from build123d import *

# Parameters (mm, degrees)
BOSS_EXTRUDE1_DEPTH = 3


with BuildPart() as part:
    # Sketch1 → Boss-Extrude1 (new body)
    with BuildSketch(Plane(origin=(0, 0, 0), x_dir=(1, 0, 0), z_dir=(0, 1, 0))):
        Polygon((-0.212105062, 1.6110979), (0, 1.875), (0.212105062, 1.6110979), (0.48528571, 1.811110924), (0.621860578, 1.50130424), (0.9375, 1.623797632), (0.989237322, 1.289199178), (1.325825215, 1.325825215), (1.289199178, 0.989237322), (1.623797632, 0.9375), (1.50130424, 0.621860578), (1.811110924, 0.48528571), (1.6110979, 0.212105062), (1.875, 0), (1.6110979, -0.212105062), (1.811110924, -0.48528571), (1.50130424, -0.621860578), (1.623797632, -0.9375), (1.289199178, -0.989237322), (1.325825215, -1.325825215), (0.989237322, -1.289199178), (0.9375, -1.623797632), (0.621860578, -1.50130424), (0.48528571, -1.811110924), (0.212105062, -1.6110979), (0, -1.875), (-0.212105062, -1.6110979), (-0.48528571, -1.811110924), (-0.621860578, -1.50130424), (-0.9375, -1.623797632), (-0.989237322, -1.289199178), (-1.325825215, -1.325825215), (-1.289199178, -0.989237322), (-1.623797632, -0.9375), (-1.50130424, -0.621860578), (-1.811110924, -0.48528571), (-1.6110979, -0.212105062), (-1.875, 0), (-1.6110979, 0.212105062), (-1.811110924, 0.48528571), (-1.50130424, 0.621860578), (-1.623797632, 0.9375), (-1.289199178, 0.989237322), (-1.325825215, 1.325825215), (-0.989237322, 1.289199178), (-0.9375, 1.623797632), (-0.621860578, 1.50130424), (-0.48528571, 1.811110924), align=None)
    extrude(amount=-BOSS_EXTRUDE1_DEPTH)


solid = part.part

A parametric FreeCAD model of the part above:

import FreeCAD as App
import Part
import Sketcher

V = App.Vector

doc = App.newDocument("Part")
params = doc.addObject("Spreadsheet::Sheet", "Params")
for row, (alias, value) in enumerate([
    ("pad1_length", "3 mm"),
], start=1):
    params.set(f"A{row}", alias)
    params.set(f"B{row}", "=" + value)
    params.setAlias(f"B{row}", alias)

body = doc.addObject("PartDesign::Body", "Body")

# Sketch on XZ plane
sketch1 = body.newObject("Sketcher::SketchObject", "Sketch")
sketch1.AttachmentSupport = (doc.getObject("XZ_Plane"), [""])
sketch1.MapMode = "FlatFace"
sketch1.addGeometry(Part.LineSegment(V(0, -1.875, 0), V(-0.212105, -1.611098, 0)), False)
sketch1.addGeometry(Part.LineSegment(V(-0.212105, -1.611098, 0), V(-0.485286, -1.811111, 0)), False)
sketch1.addGeometry(Part.LineSegment(V(-0.485286, -1.811111, 0), V(-0.621861, -1.501304, 0)), False)
sketch1.addGeometry(Part.LineSegment(V(-0.621861, -1.501304, 0), V(-0.9375, -1.623798, 0)), False)
sketch1.addGeometry(Part.LineSegment(V(-0.9375, -1.623798, 0), V(-0.989237, -1.289199, 0)), False)
sketch1.addGeometry(Part.LineSegment(V(-0.989237, -1.289199, 0), V(-1.325825, -1.325825, 0)), False)
sketch1.addGeometry(Part.LineSegment(V(-1.325825, -1.325825, 0), V(-1.289199, -0.989237, 0)), False)
sketch1.addGeometry(Part.LineSegment(V(-1.289199, -0.989237, 0), V(-1.623798, -0.9375, 0)), False)
sketch1.addGeometry(Part.LineSegment(V(-1.623798, -0.9375, 0), V(-1.501304, -0.621861, 0)), False)
sketch1.addGeometry(Part.LineSegment(V(-1.501304, -0.621861, 0), V(-1.811111, -0.485286, 0)), False)
sketch1.addGeometry(Part.LineSegment(V(-1.811111, -0.485286, 0), V(-1.611098, -0.212105, 0)), False)
sketch1.addGeometry(Part.LineSegment(V(-1.611098, -0.212105, 0), V(-1.875, 0, 0)), False)
sketch1.addGeometry(Part.LineSegment(V(-1.875, 0, 0), V(-1.611098, 0.212105, 0)), False)
sketch1.addGeometry(Part.LineSegment(V(-1.611098, 0.212105, 0), V(-1.811111, 0.485286, 0)), False)
sketch1.addGeometry(Part.LineSegment(V(-1.811111, 0.485286, 0), V(-1.501304, 0.621861, 0)), False)
sketch1.addGeometry(Part.LineSegment(V(-1.501304, 0.621861, 0), V(-1.623798, 0.9375, 0)), False)
sketch1.addGeometry(Part.LineSegment(V(-1.623798, 0.9375, 0), V(-1.289199, 0.989237, 0)), False)
sketch1.addGeometry(Part.LineSegment(V(-1.289199, 0.989237, 0), V(-1.325825, 1.325825, 0)), False)
sketch1.addGeometry(Part.LineSegment(V(-1.325825, 1.325825, 0), V(-0.989237, 1.289199, 0)), False)
sketch1.addGeometry(Part.LineSegment(V(-0.989237, 1.289199, 0), V(-0.9375, 1.623798, 0)), False)
sketch1.addGeometry(Part.LineSegment(V(-0.9375, 1.623798, 0), V(-0.621861, 1.501304, 0)), False)
sketch1.addGeometry(Part.LineSegment(V(-0.621861, 1.501304, 0), V(-0.485286, 1.811111, 0)), False)
sketch1.addGeometry(Part.LineSegment(V(-0.485286, 1.811111, 0), V(-0.212105, 1.611098, 0)), False)
sketch1.addGeometry(Part.LineSegment(V(-0.212105, 1.611098, 0), V(0, 1.875, 0)), False)
sketch1.addGeometry(Part.LineSegment(V(0, 1.875, 0), V(0.212105, 1.611098, 0)), False)
sketch1.addGeometry(Part.LineSegment(V(0.212105, 1.611098, 0), V(0.485286, 1.811111, 0)), False)
sketch1.addGeometry(Part.LineSegment(V(0.485286, 1.811111, 0), V(0.621861, 1.501304, 0)), False)
sketch1.addGeometry(Part.LineSegment(V(0.621861, 1.501304, 0), V(0.9375, 1.623798, 0)), False)
sketch1.addGeometry(Part.LineSegment(V(0.9375, 1.623798, 0), V(0.989237, 1.289199, 0)), False)
sketch1.addGeometry(Part.LineSegment(V(0.989237, 1.289199, 0), V(1.325825, 1.325825, 0)), False)
sketch1.addGeometry(Part.LineSegment(V(1.325825, 1.325825, 0), V(1.289199, 0.989237, 0)), False)
sketch1.addGeometry(Part.LineSegment(V(1.289199, 0.989237, 0), V(1.623798, 0.9375, 0)), False)
sketch1.addGeometry(Part.LineSegment(V(1.623798, 0.9375, 0), V(1.501304, 0.621861, 0)), False)
sketch1.addGeometry(Part.LineSegment(V(1.501304, 0.621861, 0), V(1.811111, 0.485286, 0)), False)
sketch1.addGeometry(Part.LineSegment(V(1.811111, 0.485286, 0), V(1.611098, 0.212105, 0)), False)
sketch1.addGeometry(Part.LineSegment(V(1.611098, 0.212105, 0), V(1.875, 0, 0)), False)
sketch1.addGeometry(Part.LineSegment(V(1.875, 0, 0), V(1.611098, -0.212105, 0)), False)
sketch1.addGeometry(Part.LineSegment(V(1.611098, -0.212105, 0), V(1.811111, -0.485286, 0)), False)
sketch1.addGeometry(Part.LineSegment(V(1.811111, -0.485286, 0), V(1.501304, -0.621861, 0)), False)
sketch1.addGeometry(Part.LineSegment(V(1.501304, -0.621861, 0), V(1.623798, -0.9375, 0)), False)
sketch1.addGeometry(Part.LineSegment(V(1.623798, -0.9375, 0), V(1.289199, -0.989237, 0)), False)
sketch1.addGeometry(Part.LineSegment(V(1.289199, -0.989237, 0), V(1.325825, -1.325825, 0)), False)
sketch1.addGeometry(Part.LineSegment(V(1.325825, -1.325825, 0), V(0.989237, -1.289199, 0)), False)
sketch1.addGeometry(Part.LineSegment(V(0.989237, -1.289199, 0), V(0.9375, -1.623798, 0)), False)
sketch1.addGeometry(Part.LineSegment(V(0.9375, -1.623798, 0), V(0.621861, -1.501304, 0)), False)
sketch1.addGeometry(Part.LineSegment(V(0.621861, -1.501304, 0), V(0.485286, -1.811111, 0)), False)
sketch1.addGeometry(Part.LineSegment(V(0.485286, -1.811111, 0), V(0.212105, -1.611098, 0)), False)
sketch1.addGeometry(Part.LineSegment(V(0.212105, -1.611098, 0), V(0, -1.875, 0)), False)
sketch1.addConstraint(Sketcher.Constraint("Coincident", 0, 2, 1, 1))
sketch1.addConstraint(Sketcher.Constraint("Coincident", 1, 2, 2, 1))
sketch1.addConstraint(Sketcher.Constraint("Coincident", 2, 2, 3, 1))
sketch1.addConstraint(Sketcher.Constraint("Coincident", 3, 2, 4, 1))
sketch1.addConstraint(Sketcher.Constraint("Coincident", 4, 2, 5, 1))
sketch1.addConstraint(Sketcher.Constraint("Coincident", 5, 2, 6, 1))
sketch1.addConstraint(Sketcher.Constraint("Coincident", 6, 2, 7, 1))
sketch1.addConstraint(Sketcher.Constraint("Coincident", 7, 2, 8, 1))
sketch1.addConstraint(Sketcher.Constraint("Coincident", 8, 2, 9, 1))
sketch1.addConstraint(Sketcher.Constraint("Coincident", 9, 2, 10, 1))
sketch1.addConstraint(Sketcher.Constraint("Coincident", 10, 2, 11, 1))
sketch1.addConstraint(Sketcher.Constraint("Coincident", 11, 2, 12, 1))
sketch1.addConstraint(Sketcher.Constraint("Coincident", 12, 2, 13, 1))
sketch1.addConstraint(Sketcher.Constraint("Coincident", 13, 2, 14, 1))
sketch1.addConstraint(Sketcher.Constraint("Coincident", 14, 2, 15, 1))
sketch1.addConstraint(Sketcher.Constraint("Coincident", 15, 2, 16, 1))
sketch1.addConstraint(Sketcher.Constraint("Coincident", 16, 2, 17, 1))
sketch1.addConstraint(Sketcher.Constraint("Coincident", 17, 2, 18, 1))
sketch1.addConstraint(Sketcher.Constraint("Coincident", 18, 2, 19, 1))
sketch1.addConstraint(Sketcher.Constraint("Coincident", 19, 2, 20, 1))
sketch1.addConstraint(Sketcher.Constraint("Coincident", 20, 2, 21, 1))
sketch1.addConstraint(Sketcher.Constraint("Coincident", 21, 2, 22, 1))
sketch1.addConstraint(Sketcher.Constraint("Coincident", 22, 2, 23, 1))
sketch1.addConstraint(Sketcher.Constraint("Coincident", 23, 2, 24, 1))
sketch1.addConstraint(Sketcher.Constraint("Coincident", 24, 2, 25, 1))
sketch1.addConstraint(Sketcher.Constraint("Coincident", 25, 2, 26, 1))
sketch1.addConstraint(Sketcher.Constraint("Coincident", 26, 2, 27, 1))
sketch1.addConstraint(Sketcher.Constraint("Coincident", 27, 2, 28, 1))
sketch1.addConstraint(Sketcher.Constraint("Coincident", 28, 2, 29, 1))
sketch1.addConstraint(Sketcher.Constraint("Coincident", 29, 2, 30, 1))
sketch1.addConstraint(Sketcher.Constraint("Coincident", 30, 2, 31, 1))
sketch1.addConstraint(Sketcher.Constraint("Coincident", 31, 2, 32, 1))
sketch1.addConstraint(Sketcher.Constraint("Coincident", 32, 2, 33, 1))
sketch1.addConstraint(Sketcher.Constraint("Coincident", 33, 2, 34, 1))
sketch1.addConstraint(Sketcher.Constraint("Coincident", 34, 2, 35, 1))
sketch1.addConstraint(Sketcher.Constraint("Coincident", 35, 2, 36, 1))
sketch1.addConstraint(Sketcher.Constraint("Coincident", 36, 2, 37, 1))
sketch1.addConstraint(Sketcher.Constraint("Coincident", 37, 2, 38, 1))
sketch1.addConstraint(Sketcher.Constraint("Coincident", 38, 2, 39, 1))
sketch1.addConstraint(Sketcher.Constraint("Coincident", 39, 2, 40, 1))
sketch1.addConstraint(Sketcher.Constraint("Coincident", 40, 2, 41, 1))
sketch1.addConstraint(Sketcher.Constraint("Coincident", 41, 2, 42, 1))
sketch1.addConstraint(Sketcher.Constraint("Coincident", 42, 2, 43, 1))
sketch1.addConstraint(Sketcher.Constraint("Coincident", 43, 2, 44, 1))
sketch1.addConstraint(Sketcher.Constraint("Coincident", 44, 2, 45, 1))
sketch1.addConstraint(Sketcher.Constraint("Coincident", 45, 2, 46, 1))
sketch1.addConstraint(Sketcher.Constraint("Coincident", 46, 2, 47, 1))
sketch1.addConstraint(Sketcher.Constraint("Coincident", 47, 2, 0, 1))
sketch1.addConstraint(Sketcher.Constraint("PointOnObject", 11, 2, -1))
sketch1.addConstraint(Sketcher.Constraint("PointOnObject", 23, 2, -2))
sketch1.addConstraint(Sketcher.Constraint("PointOnObject", 35, 2, -1))
sketch1.addConstraint(Sketcher.Constraint("PointOnObject", 47, 2, -2))
sketch1.addConstraint(Sketcher.Constraint("DistanceX", 11, 2, -1, 1, 1.875))
sketch1.addConstraint(Sketcher.Constraint("DistanceY", -1, 1, 23, 2, 1.875))
sketch1.addConstraint(Sketcher.Constraint("DistanceX", -1, 1, 35, 2, 1.875))
sketch1.addConstraint(Sketcher.Constraint("DistanceY", 47, 2, -1, 1, 1.875))
sketch1.addConstraint(Sketcher.Constraint("DistanceX", 3, 2, -1, 1, 0.9375))
sketch1.addConstraint(Sketcher.Constraint("DistanceY", 4, 2, -1, 1, 1.289199))
sketch1.addConstraint(Sketcher.Constraint("DistanceX", 6, 2, -1, 1, 1.289199))
sketch1.addConstraint(Sketcher.Constraint("DistanceY", 7, 2, -1, 1, 0.9375))
sketch1.addConstraint(Sketcher.Constraint("DistanceY", -1, 1, 15, 2, 0.9375))
sketch1.addConstraint(Sketcher.Constraint("DistanceX", 16, 2, -1, 1, 1.289199))
sketch1.addConstraint(Sketcher.Constraint("DistanceY", -1, 1, 18, 2, 1.289199))
sketch1.addConstraint(Sketcher.Constraint("DistanceX", 19, 2, -1, 1, 0.9375))
sketch1.addConstraint(Sketcher.Constraint("DistanceX", -1, 1, 27, 2, 0.9375))
sketch1.addConstraint(Sketcher.Constraint("DistanceY", -1, 1, 28, 2, 1.289199))
sketch1.addConstraint(Sketcher.Constraint("DistanceX", -1, 1, 30, 2, 1.289199))
sketch1.addConstraint(Sketcher.Constraint("DistanceY", -1, 1, 31, 2, 0.9375))
sketch1.addConstraint(Sketcher.Constraint("DistanceY", 39, 2, -1, 1, 0.9375))
sketch1.addConstraint(Sketcher.Constraint("DistanceX", -1, 1, 40, 2, 1.289199))
sketch1.addConstraint(Sketcher.Constraint("DistanceY", 42, 2, -1, 1, 1.289199))
sketch1.addConstraint(Sketcher.Constraint("DistanceX", -1, 1, 43, 2, 0.9375))
sketch1.addConstraint(Sketcher.Constraint("DistanceY", 3, 2, 0, 2, 0.0127))
sketch1.addConstraint(Sketcher.Constraint("DistanceY", 3, 2, 4, 2, 0.334598))
sketch1.addConstraint(Sketcher.Constraint("DistanceX", 7, 2, 6, 2, 0.334598))
sketch1.addConstraint(Sketcher.Constraint("DistanceX", 7, 2, 10, 2, 0.0127))
sketch1.addConstraint(Sketcher.Constraint("DistanceX", 7, 2, 12, 2, 0.0127))
sketch1.addConstraint(Sketcher.Constraint("DistanceX", 15, 2, 12, 2, 0.0127))
sketch1.addConstraint(Sketcher.Constraint("DistanceY", 18, 2, 19, 2, 0.334598))
sketch1.addConstraint(Sketcher.Constraint("DistanceY", 22, 2, 19, 2, 0.0127))
sketch1.addConstraint(Sketcher.Constraint("DistanceY", 24, 2, 19, 2, 0.0127))
sketch1.addConstraint(Sketcher.Constraint("DistanceY", 24, 2, 27, 2, 0.0127))
sketch1.addConstraint(Sketcher.Constraint("DistanceX", 30, 2, 31, 2, 0.334598))
sketch1.addConstraint(Sketcher.Constraint("DistanceX", 34, 2, 31, 2, 0.0127))
sketch1.addConstraint(Sketcher.Constraint("DistanceX", 36, 2, 31, 2, 0.0127))
sketch1.addConstraint(Sketcher.Constraint("DistanceX", 36, 2, 39, 2, 0.0127))
sketch1.addConstraint(Sketcher.Constraint("DistanceY", 43, 2, 42, 2, 0.334598))
sketch1.addConstraint(Sketcher.Constraint("DistanceY", 43, 2, 46, 2, 0.0127))
sketch1.addConstraint(Sketcher.Constraint("DistanceY", 1, 2, -1, 1, 1.811111))
sketch1.addConstraint(Sketcher.Constraint("DistanceX", 2, 2, -1, 1, 0.621861))
sketch1.addConstraint(Sketcher.Constraint("DistanceY", 8, 2, -1, 1, 0.621861))
sketch1.addConstraint(Sketcher.Constraint("DistanceX", 9, 2, -1, 1, 1.811111))
sketch1.addConstraint(Sketcher.Constraint("DistanceX", 13, 2, -1, 1, 1.811111))
sketch1.addConstraint(Sketcher.Constraint("DistanceY", -1, 1, 14, 2, 0.621861))
sketch1.addConstraint(Sketcher.Constraint("DistanceX", 20, 2, -1, 1, 0.621861))
sketch1.addConstraint(Sketcher.Constraint("DistanceY", -1, 1, 21, 2, 1.811111))
sketch1.addConstraint(Sketcher.Constraint("DistanceY", -1, 1, 25, 2, 1.811111))
sketch1.addConstraint(Sketcher.Constraint("DistanceX", -1, 1, 26, 2, 0.621861))
sketch1.addConstraint(Sketcher.Constraint("DistanceY", -1, 1, 32, 2, 0.621861))
sketch1.addConstraint(Sketcher.Constraint("DistanceX", -1, 1, 33, 2, 1.811111))
sketch1.addConstraint(Sketcher.Constraint("DistanceX", -1, 1, 37, 2, 1.811111))
sketch1.addConstraint(Sketcher.Constraint("DistanceY", 38, 2, -1, 1, 0.621861))
sketch1.addConstraint(Sketcher.Constraint("DistanceX", -1, 1, 44, 2, 0.621861))
sketch1.addConstraint(Sketcher.Constraint("DistanceY", 45, 2, -1, 1, 1.811111))
sketch1.addConstraint(Sketcher.Constraint("DistanceX", 1, 2, 0, 2, 0.273181))
sketch1.addConstraint(Sketcher.Constraint("DistanceX", 4, 2, 1, 2, 0.503952))
sketch1.addConstraint(Sketcher.Constraint("DistanceY", 2, 2, 5, 2, 0.175479))
sketch1.addConstraint(Sketcher.Constraint("DistanceX", 5, 2, 1, 2, 0.84054))
sketch1.addConstraint(Sketcher.Constraint("DistanceX", 6, 2, 4, 2, 0.299962))
sketch1.addConstraint(Sketcher.Constraint("DistanceY", 4, 2, 6, 2, 0.299962))
sketch1.addConstraint(Sketcher.Constraint("DistanceX", 8, 2, 5, 2, 0.175479))
sketch1.addConstraint(Sketcher.Constraint("DistanceY", 6, 2, 9, 2, 0.503952))
sketch1.addConstraint(Sketcher.Constraint("DistanceY", 5, 2, 9, 2, 0.84054))
sketch1.addConstraint(Sketcher.Constraint("DistanceY", 9, 2, 10, 2, 0.273181))
sketch1.addConstraint(Sketcher.Constraint("DistanceY", 10, 2, 12, 2, 0.42421))
sketch1.addConstraint(Sketcher.Constraint("DistanceY", 12, 2, 13, 2, 0.273181))
sketch1.addConstraint(Sketcher.Constraint("DistanceY", 13, 2, 16, 2, 0.503952))
sketch1.addConstraint(Sketcher.Constraint("DistanceX", 14, 2, 17, 2, 0.175479))
sketch1.addConstraint(Sketcher.Constraint("DistanceY", 13, 2, 17, 2, 0.84054))
sketch1.addConstraint(Sketcher.Constraint("DistanceX", 16, 2, 18, 2, 0.299962))
sketch1.addConstraint(Sketcher.Constraint("DistanceY", 17, 2, 20, 2, 0.175479))
sketch1.addConstraint(Sketcher.Constraint("DistanceX", 18, 2, 21, 2, 0.503952))
sketch1.addConstraint(Sketcher.Constraint("DistanceX", 17, 2, 21, 2, 0.84054))
sketch1.addConstraint(Sketcher.Constraint("DistanceX", 21, 2, 22, 2, 0.273181))
sketch1.addConstraint(Sketcher.Constraint("DistanceX", 22, 2, 24, 2, 0.42421))
sketch1.addConstraint(Sketcher.Constraint("DistanceX", 24, 2, 25, 2, 0.273181))
sketch1.addConstraint(Sketcher.Constraint("DistanceX", 25, 2, 28, 2, 0.503952))
sketch1.addConstraint(Sketcher.Constraint("DistanceY", 29, 2, 26, 2, 0.175479))
sketch1.addConstraint(Sketcher.Constraint("DistanceX", 25, 2, 29, 2, 0.84054))
sketch1.addConstraint(Sketcher.Constraint("DistanceY", 30, 2, 28, 2, 0.299962))
sketch1.addConstraint(Sketcher.Constraint("DistanceX", 29, 2, 32, 2, 0.175479))
sketch1.addConstraint(Sketcher.Constraint("DistanceY", 33, 2, 30, 2, 0.503952))
sketch1.addConstraint(Sketcher.Constraint("DistanceY", 33, 2, 29, 2, 0.84054))
sketch1.addConstraint(Sketcher.Constraint("DistanceY", 34, 2, 33, 2, 0.273181))
sketch1.addConstraint(Sketcher.Constraint("DistanceY", 36, 2, 34, 2, 0.42421))
sketch1.addConstraint(Sketcher.Constraint("DistanceY", 37, 2, 36, 2, 0.273181))
sketch1.addConstraint(Sketcher.Constraint("DistanceY", 40, 2, 37, 2, 0.503952))
sketch1.addConstraint(Sketcher.Constraint("DistanceX", 41, 2, 38, 2, 0.175479))
sketch1.addConstraint(Sketcher.Constraint("DistanceY", 41, 2, 37, 2, 0.84054))
sketch1.addConstraint(Sketcher.Constraint("DistanceX", 42, 2, 40, 2, 0.299962))
sketch1.addConstraint(Sketcher.Constraint("DistanceY", 44, 2, 41, 2, 0.175479))
sketch1.addConstraint(Sketcher.Constraint("DistanceX", 45, 2, 42, 2, 0.503952))
sketch1.addConstraint(Sketcher.Constraint("DistanceX", 45, 2, 41, 2, 0.84054))
sketch1.addConstraint(Sketcher.Constraint("DistanceX", 46, 2, 45, 2, 0.273181))
pad1 = body.newObject("PartDesign::Pad", "Pad")
pad1.Profile = sketch1
pad1.setExpression("Length", "Params.pad1_length")

doc.recompute()
